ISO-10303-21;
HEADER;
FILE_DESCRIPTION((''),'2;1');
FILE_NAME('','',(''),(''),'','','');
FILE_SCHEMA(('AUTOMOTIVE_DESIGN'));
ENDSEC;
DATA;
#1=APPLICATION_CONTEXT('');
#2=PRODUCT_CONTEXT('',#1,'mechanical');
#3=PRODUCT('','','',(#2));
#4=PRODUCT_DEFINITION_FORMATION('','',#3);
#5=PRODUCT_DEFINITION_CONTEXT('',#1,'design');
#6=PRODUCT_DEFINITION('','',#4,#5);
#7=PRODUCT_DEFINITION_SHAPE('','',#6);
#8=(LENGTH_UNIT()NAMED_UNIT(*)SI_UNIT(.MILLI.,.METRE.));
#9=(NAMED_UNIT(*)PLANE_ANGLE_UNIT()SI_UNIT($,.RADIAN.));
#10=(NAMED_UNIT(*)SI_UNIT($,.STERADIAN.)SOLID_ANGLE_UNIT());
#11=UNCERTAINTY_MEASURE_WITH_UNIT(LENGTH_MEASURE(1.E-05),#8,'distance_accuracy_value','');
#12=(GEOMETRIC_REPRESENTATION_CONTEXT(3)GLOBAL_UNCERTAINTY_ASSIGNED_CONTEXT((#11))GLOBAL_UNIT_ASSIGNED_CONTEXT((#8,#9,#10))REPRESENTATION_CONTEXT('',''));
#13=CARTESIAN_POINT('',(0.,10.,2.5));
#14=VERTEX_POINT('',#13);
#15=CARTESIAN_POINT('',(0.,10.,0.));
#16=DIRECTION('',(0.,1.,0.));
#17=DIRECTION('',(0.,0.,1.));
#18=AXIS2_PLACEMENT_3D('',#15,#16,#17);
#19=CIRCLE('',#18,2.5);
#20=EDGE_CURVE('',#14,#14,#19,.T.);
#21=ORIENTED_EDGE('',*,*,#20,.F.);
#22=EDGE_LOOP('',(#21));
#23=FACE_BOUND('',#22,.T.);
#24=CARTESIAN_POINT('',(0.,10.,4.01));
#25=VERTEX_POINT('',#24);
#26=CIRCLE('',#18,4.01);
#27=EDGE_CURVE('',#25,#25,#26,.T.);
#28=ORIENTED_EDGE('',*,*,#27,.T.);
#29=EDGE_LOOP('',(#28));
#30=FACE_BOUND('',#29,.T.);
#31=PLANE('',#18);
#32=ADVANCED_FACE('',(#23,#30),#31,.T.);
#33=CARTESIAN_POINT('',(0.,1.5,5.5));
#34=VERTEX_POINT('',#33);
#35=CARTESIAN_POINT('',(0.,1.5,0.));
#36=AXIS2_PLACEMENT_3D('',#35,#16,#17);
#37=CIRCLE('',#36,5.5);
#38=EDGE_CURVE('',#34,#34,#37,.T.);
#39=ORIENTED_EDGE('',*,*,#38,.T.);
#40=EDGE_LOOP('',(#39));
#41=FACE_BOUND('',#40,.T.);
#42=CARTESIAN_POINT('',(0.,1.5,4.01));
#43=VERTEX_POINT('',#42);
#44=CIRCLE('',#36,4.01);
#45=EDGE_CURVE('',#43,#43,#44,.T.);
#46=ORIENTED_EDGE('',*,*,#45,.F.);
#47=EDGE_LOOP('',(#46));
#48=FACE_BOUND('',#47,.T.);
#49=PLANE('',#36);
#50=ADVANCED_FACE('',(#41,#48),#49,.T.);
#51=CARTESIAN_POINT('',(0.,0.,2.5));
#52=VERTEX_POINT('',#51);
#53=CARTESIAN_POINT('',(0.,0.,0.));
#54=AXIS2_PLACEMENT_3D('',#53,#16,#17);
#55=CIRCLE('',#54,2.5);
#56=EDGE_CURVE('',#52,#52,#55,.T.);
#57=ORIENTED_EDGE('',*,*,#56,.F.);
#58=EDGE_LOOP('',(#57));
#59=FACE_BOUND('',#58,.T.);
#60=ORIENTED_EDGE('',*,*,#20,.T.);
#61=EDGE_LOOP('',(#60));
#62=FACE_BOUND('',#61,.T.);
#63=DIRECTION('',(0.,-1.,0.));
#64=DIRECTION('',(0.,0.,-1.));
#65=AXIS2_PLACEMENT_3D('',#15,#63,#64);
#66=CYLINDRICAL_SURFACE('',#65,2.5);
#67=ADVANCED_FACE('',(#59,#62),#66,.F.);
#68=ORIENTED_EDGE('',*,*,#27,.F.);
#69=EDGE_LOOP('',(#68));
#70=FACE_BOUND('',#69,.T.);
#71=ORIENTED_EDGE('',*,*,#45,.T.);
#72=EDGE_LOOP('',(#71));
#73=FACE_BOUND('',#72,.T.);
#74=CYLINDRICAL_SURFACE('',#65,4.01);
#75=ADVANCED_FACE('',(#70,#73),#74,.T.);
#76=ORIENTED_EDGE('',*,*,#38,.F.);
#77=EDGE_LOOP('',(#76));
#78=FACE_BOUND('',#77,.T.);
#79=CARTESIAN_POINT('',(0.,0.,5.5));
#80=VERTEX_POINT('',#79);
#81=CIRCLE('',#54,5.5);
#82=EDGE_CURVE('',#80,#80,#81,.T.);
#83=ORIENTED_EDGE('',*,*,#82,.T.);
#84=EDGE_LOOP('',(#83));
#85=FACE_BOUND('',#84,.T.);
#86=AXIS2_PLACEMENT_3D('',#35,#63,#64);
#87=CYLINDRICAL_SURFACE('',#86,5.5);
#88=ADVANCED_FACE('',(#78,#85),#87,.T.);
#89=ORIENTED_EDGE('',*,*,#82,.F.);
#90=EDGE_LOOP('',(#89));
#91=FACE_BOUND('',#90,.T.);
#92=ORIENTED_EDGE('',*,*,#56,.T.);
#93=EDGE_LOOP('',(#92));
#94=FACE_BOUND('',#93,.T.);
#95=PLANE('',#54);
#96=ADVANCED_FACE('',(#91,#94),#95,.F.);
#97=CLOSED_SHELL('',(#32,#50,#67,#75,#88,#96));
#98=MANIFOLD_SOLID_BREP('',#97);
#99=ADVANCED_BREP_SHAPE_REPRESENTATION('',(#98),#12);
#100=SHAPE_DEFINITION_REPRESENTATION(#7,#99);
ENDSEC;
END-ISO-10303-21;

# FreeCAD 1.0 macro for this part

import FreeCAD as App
import Part
import Sketcher
Q = App.Units.Quantity

doc = App.newDocument("Part")
body = doc.addObject("PartDesign::Body", "Body")

sketch1 = body.newObject("Sketcher::SketchObject", "Sketch")
sketch1.AttachmentSupport = (doc.getObject("XZ_Plane"), [""])
sketch1.MapMode = "FlatFace"
sketch1.addGeometry([
    Part.Circle(App.Vector(0, 0, 0), App.Vector(0, 0, 1), 4),
    Part.Circle(App.Vector(0, 0, 0), App.Vector(0, 0, 1), 2.5),
], False)
sketch1.addConstraint([
    Sketcher.Constraint("Coincident", 0, 3, -1, 1),
    Sketcher.Constraint("Coincident", 1, 3, -1, 1),
    Sketcher.Constraint("Diameter", 1, Q("5 mm")),
    Sketcher.Constraint("Diameter", 0, Q("8.02 mm")),
])
pad1 = body.newObject("PartDesign::Pad", "Pad")
pad1.Profile = sketch1
pad1.Length = 10
pad1.Reversed = True

sketch2 = body.newObject("Sketcher::SketchObject", "Sketch001")
sketch2.AttachmentSupport = (doc.getObject("XZ_Plane"), [""])
sketch2.MapMode = "FlatFace"
sketch2.addGeometry([
    Part.Circle(App.Vector(0, 0, 0), App.Vector(0, 0, 1), 5.5),
    Part.Circle(App.Vector(0, 0, 0), App.Vector(0, 0, 1), 4),
], False)
sketch2.addConstraint([
    Sketcher.Constraint("Coincident", 0, 3, -1, 1),
    Sketcher.Constraint("Coincident", 1, 3, -1, 1),
    Sketcher.Constraint("Diameter", 0, Q("11 mm")),
    Sketcher.Constraint("Diameter", 1, Q("8.02 mm")),
])
pad2 = body.newObject("PartDesign::Pad", "Pad001")
pad2.Profile = sketch2
pad2.Length = 1.5
pad2.Reversed = True

doc.recompute()
